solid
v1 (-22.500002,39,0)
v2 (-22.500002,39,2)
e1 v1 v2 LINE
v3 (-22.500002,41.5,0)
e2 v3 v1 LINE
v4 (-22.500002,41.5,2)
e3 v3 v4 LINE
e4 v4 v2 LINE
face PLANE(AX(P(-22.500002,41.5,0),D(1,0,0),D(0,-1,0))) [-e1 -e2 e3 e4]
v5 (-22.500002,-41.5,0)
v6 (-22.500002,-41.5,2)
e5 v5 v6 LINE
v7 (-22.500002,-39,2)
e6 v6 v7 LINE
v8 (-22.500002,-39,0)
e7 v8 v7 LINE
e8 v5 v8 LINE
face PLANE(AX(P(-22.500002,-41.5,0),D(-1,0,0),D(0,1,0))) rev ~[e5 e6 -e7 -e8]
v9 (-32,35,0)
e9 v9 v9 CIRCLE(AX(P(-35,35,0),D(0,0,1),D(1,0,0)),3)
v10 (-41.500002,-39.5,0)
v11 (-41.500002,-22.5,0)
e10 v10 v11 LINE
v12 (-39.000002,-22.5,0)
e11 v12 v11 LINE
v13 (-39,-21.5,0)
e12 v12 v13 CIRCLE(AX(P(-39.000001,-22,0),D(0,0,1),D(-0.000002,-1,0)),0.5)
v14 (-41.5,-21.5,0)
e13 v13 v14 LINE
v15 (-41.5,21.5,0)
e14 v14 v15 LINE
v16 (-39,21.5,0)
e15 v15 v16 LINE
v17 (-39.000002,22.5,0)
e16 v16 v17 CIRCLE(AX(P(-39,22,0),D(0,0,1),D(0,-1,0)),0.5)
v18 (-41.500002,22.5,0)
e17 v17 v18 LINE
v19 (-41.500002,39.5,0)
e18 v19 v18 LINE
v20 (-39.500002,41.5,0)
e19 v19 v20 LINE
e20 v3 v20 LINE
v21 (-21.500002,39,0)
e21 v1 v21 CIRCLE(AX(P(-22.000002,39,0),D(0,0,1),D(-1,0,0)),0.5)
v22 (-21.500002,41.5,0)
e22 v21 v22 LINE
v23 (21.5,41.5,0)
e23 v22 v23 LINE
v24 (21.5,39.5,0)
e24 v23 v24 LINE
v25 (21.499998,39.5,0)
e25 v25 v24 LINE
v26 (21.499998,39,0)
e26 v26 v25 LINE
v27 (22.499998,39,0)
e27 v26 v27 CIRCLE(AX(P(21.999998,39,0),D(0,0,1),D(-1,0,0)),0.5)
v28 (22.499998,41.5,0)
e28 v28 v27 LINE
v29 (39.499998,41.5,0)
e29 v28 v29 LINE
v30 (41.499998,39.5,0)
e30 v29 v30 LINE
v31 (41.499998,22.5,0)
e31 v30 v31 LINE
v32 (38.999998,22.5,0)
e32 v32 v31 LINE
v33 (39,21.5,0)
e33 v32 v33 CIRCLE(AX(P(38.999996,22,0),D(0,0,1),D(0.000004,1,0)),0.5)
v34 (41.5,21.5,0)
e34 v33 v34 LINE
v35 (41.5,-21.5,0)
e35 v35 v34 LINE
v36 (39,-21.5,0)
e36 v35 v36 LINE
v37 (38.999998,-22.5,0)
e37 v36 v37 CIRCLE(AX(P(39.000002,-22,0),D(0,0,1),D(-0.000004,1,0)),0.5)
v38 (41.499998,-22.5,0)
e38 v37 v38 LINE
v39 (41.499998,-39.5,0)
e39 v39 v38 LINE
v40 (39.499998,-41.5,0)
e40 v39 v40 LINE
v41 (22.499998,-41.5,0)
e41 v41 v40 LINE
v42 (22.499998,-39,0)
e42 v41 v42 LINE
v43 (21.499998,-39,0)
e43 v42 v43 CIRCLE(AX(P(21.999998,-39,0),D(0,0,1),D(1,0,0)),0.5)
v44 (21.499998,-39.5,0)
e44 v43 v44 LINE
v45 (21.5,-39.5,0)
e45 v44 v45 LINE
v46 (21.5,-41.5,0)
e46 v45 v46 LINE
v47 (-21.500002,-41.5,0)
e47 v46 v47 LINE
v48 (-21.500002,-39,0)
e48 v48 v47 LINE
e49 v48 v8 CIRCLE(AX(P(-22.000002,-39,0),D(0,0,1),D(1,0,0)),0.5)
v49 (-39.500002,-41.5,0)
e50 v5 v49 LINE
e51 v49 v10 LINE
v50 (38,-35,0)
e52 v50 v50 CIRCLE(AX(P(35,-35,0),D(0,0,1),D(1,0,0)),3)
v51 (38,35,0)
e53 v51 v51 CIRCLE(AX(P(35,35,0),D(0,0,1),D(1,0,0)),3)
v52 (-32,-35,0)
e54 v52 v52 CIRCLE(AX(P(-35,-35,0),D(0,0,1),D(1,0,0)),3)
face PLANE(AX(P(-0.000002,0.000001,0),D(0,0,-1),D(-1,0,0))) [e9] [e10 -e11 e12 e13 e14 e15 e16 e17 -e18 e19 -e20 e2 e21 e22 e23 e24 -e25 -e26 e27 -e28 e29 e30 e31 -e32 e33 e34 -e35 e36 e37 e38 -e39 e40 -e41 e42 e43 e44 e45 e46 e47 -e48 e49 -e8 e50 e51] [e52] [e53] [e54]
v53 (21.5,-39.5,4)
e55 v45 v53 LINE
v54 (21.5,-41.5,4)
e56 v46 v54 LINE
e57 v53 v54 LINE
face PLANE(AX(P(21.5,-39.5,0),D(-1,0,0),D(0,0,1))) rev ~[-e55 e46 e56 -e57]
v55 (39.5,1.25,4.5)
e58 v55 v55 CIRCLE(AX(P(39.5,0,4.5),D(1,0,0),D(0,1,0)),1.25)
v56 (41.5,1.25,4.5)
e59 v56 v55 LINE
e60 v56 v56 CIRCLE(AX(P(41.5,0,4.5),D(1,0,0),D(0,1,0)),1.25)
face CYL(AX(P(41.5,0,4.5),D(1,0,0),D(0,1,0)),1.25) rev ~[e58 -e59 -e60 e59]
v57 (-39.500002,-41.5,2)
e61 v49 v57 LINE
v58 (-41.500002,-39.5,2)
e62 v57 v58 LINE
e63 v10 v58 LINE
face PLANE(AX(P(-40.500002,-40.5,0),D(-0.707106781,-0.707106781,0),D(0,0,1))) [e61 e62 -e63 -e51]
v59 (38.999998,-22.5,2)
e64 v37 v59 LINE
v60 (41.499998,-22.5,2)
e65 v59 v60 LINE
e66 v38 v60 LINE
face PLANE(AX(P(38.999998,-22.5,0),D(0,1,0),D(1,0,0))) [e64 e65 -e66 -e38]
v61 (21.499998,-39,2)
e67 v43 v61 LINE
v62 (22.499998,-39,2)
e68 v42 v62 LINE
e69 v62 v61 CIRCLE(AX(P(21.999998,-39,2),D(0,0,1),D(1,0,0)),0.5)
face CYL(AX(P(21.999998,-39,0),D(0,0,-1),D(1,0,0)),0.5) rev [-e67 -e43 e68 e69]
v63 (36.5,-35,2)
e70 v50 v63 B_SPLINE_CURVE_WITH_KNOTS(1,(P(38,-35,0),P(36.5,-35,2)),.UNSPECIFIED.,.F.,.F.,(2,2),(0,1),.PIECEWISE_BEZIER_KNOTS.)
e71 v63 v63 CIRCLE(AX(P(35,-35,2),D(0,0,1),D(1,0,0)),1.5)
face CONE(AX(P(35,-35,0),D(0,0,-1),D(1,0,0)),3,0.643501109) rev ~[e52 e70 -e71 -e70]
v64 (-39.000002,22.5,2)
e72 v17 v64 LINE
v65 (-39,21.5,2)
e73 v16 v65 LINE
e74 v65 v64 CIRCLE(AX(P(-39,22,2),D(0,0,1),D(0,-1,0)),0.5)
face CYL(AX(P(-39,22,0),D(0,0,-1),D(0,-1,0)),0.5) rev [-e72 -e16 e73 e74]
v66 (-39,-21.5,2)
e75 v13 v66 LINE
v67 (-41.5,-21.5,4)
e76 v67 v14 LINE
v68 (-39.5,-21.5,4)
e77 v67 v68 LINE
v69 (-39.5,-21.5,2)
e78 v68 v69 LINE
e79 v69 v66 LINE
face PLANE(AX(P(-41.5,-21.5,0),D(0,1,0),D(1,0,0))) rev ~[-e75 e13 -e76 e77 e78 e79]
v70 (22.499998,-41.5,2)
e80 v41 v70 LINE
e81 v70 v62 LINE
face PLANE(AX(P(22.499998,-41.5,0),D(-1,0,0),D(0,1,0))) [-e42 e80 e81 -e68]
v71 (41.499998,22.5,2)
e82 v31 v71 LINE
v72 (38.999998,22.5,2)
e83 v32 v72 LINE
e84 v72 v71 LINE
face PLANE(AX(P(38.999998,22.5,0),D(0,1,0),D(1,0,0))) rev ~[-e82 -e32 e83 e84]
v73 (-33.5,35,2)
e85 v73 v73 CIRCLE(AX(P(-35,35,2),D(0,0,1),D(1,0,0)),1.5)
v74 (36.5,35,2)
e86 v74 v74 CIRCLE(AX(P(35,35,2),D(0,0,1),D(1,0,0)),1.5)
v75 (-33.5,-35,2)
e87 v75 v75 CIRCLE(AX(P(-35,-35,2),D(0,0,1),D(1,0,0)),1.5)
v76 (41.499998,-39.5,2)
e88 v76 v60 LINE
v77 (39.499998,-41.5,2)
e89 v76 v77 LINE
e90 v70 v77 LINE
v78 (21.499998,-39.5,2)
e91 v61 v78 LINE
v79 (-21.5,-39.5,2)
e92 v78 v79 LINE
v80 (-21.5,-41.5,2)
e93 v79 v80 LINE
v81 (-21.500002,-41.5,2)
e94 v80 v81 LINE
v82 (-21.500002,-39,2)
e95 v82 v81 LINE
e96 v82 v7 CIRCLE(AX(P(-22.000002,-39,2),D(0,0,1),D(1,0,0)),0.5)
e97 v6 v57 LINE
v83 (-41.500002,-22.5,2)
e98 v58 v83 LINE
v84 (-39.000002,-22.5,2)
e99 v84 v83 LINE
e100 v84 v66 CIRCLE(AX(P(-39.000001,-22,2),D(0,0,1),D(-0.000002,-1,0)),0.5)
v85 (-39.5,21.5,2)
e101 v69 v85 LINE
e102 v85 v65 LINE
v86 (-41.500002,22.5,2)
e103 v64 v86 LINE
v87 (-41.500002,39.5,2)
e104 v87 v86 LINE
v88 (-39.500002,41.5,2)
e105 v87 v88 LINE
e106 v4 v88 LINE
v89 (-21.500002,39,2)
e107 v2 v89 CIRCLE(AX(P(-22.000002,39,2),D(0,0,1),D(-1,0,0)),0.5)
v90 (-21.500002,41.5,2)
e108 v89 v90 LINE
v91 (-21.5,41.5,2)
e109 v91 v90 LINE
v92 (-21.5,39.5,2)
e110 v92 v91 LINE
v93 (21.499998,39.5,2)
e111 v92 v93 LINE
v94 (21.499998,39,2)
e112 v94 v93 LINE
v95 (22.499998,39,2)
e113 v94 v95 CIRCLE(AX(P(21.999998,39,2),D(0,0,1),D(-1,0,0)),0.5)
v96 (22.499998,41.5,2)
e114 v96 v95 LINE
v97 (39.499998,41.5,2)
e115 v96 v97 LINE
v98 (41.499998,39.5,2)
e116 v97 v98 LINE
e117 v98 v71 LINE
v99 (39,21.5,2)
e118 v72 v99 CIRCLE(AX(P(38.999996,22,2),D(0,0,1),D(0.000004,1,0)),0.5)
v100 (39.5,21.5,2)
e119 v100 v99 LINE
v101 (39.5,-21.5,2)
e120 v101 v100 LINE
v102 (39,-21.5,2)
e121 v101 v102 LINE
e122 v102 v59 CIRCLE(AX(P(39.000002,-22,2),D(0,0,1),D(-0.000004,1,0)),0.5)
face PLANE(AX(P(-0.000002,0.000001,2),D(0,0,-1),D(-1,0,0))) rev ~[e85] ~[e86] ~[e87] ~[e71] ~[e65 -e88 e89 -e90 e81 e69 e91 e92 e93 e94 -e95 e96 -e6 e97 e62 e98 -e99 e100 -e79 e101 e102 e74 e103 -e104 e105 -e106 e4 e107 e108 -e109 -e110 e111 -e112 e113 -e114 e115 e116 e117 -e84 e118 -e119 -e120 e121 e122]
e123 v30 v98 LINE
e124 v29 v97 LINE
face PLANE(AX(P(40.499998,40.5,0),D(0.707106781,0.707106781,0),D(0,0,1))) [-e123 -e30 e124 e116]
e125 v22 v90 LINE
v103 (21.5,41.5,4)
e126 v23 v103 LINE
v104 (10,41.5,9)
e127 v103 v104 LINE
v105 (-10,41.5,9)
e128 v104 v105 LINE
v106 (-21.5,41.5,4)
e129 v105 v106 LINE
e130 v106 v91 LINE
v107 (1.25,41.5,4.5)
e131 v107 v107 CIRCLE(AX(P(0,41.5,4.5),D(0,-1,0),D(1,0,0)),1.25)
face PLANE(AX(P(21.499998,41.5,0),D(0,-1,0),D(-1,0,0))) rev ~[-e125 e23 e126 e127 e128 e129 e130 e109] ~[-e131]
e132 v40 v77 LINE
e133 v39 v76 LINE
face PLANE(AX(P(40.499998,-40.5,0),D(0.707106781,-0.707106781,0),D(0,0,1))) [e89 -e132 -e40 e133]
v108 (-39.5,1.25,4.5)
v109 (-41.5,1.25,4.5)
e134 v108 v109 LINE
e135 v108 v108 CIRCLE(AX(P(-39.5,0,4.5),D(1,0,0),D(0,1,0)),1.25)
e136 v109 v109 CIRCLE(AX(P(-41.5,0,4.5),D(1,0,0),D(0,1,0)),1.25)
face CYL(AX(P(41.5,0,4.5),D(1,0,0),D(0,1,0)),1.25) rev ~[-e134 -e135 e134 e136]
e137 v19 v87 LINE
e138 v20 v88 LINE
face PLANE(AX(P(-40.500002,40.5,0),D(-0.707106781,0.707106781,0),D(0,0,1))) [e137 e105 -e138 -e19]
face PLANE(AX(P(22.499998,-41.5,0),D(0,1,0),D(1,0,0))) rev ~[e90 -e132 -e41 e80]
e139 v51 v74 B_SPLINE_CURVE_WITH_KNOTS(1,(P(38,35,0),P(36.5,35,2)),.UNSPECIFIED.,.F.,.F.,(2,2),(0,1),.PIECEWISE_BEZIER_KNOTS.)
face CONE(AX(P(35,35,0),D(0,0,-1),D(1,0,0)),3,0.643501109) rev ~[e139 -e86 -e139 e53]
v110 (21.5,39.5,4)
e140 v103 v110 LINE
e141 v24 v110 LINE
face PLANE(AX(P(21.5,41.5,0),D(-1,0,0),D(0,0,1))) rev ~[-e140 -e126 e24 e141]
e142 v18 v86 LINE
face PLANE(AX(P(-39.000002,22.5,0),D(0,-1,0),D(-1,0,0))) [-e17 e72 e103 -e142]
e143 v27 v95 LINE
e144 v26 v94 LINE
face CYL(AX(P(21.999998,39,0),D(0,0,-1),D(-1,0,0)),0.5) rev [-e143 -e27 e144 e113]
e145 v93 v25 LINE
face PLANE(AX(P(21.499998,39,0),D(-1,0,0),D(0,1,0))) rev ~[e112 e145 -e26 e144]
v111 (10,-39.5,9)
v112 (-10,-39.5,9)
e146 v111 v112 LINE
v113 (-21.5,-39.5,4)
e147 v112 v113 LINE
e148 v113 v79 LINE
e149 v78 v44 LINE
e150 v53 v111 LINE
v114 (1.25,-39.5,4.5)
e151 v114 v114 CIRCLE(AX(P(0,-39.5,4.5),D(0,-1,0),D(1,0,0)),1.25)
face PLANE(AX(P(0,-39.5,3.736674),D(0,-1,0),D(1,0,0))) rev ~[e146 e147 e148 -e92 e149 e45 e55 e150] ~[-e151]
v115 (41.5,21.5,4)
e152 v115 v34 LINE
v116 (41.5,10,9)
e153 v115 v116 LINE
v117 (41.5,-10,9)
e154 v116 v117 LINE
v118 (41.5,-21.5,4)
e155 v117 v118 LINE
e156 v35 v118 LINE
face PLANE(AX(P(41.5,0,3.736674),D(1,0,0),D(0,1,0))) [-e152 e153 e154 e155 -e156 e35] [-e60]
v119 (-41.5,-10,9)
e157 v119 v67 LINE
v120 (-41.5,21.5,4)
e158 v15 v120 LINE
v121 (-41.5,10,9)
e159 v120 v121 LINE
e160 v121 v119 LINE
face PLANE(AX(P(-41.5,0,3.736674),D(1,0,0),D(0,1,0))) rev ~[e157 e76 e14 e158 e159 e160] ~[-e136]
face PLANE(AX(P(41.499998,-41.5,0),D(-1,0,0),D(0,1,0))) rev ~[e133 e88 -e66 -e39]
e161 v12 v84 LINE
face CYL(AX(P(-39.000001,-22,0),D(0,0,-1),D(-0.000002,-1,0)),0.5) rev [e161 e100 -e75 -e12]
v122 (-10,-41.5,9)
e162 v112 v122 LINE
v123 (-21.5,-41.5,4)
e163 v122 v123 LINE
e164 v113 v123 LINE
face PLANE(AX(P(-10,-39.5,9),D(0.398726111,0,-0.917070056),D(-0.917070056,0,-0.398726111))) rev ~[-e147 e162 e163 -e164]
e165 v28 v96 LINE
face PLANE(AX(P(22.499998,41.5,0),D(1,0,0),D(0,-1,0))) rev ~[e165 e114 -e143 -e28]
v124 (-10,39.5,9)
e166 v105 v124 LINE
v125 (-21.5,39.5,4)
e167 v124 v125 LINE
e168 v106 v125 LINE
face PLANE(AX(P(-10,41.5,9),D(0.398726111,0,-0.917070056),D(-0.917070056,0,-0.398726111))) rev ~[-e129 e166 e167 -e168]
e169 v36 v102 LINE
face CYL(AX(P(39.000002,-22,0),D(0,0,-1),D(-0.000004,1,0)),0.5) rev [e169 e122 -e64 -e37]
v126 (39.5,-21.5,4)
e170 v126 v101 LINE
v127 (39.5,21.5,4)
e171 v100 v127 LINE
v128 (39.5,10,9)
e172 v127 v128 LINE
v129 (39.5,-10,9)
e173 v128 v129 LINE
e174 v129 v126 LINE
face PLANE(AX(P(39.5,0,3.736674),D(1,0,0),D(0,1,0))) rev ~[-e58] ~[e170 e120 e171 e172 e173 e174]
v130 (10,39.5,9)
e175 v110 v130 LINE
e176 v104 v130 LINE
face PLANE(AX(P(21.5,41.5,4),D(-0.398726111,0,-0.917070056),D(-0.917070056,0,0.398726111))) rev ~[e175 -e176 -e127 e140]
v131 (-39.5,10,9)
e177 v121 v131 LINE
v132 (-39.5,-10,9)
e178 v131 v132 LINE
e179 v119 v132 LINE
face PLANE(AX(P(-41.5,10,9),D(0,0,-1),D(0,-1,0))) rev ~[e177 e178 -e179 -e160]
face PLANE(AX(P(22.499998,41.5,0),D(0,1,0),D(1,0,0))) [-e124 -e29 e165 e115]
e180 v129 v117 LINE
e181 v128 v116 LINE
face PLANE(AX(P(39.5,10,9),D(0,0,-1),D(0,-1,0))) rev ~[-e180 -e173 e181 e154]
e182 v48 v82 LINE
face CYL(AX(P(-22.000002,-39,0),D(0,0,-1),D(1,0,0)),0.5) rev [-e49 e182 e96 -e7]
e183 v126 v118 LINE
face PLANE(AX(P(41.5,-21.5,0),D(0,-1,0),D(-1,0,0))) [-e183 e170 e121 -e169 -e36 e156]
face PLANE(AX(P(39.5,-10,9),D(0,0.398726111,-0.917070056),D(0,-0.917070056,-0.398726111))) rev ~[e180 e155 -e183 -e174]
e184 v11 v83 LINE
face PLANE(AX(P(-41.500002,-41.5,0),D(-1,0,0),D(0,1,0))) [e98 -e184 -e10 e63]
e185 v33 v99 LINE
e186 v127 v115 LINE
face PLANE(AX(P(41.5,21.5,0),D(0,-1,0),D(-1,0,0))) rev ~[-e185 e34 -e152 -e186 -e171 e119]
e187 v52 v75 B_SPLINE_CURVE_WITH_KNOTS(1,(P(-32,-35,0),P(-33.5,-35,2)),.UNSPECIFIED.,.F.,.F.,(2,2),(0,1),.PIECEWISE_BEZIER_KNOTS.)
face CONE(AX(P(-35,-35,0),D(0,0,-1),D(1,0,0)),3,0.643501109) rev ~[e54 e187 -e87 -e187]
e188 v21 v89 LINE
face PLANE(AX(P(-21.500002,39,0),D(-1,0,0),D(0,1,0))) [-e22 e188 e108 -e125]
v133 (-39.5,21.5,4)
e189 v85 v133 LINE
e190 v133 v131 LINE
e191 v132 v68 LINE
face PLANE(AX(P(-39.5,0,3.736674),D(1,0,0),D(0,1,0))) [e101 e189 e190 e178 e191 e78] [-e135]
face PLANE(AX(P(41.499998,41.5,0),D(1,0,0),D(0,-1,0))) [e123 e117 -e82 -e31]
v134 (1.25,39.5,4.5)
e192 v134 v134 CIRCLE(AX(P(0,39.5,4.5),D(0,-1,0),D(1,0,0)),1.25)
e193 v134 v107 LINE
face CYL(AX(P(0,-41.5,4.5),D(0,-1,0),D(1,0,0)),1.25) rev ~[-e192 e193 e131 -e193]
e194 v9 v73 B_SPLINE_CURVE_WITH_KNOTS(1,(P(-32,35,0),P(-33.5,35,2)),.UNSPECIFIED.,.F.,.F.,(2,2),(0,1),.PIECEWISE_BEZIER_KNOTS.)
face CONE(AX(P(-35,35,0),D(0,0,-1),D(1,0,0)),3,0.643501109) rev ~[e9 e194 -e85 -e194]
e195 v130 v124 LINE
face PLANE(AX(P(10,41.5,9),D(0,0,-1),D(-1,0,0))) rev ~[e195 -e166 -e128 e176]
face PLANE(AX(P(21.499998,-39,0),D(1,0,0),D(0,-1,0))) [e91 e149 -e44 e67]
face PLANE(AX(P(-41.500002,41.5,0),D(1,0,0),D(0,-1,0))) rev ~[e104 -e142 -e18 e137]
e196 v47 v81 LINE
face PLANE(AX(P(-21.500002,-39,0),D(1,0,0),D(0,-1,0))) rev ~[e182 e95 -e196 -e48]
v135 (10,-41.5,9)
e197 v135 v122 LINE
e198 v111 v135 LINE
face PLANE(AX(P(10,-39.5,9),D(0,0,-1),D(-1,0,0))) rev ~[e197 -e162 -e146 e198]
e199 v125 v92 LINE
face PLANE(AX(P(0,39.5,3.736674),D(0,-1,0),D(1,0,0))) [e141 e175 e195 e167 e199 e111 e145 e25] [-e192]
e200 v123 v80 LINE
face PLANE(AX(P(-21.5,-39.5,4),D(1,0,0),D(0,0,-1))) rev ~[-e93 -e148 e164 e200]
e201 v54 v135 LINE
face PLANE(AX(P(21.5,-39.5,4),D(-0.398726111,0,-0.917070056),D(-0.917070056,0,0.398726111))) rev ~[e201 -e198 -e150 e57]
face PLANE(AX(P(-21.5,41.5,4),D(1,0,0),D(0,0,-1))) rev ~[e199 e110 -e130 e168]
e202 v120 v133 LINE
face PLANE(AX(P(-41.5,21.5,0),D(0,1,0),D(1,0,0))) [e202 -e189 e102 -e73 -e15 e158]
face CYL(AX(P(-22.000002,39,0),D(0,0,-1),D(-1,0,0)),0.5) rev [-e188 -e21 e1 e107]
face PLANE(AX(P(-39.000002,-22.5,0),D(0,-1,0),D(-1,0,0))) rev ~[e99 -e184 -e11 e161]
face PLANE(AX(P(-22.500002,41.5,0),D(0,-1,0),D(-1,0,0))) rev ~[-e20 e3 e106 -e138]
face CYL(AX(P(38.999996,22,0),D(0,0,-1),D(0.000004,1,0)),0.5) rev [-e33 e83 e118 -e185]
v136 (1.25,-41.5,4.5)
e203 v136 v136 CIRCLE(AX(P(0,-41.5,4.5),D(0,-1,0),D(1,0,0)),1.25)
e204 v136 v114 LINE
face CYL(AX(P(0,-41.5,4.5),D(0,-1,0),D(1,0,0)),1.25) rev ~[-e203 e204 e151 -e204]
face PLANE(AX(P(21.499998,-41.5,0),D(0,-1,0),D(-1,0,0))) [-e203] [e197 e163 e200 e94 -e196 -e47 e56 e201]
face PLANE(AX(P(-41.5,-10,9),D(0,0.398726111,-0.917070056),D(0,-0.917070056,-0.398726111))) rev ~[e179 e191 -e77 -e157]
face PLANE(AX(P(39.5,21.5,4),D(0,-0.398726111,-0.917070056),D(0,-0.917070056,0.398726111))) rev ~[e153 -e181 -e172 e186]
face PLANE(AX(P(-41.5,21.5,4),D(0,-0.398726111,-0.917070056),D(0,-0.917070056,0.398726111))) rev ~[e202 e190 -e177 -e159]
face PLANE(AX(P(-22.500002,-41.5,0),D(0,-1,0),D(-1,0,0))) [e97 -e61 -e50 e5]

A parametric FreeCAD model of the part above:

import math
import FreeCAD as App
import Part
import Sketcher
from FreeCAD import Vector


def edges_at(feature, points):
    """Names of the edges that pass closest to the given points."""
    edges = feature.Shape.Edges
    near = lambda p: min(range(len(edges)), key=lambda i: edges[i].distToShape(Part.Vertex(*p))[0])
    return sorted({f"Edge{near(p) + 1}" for p in points})


def add_polygon(sketch, points):
    """Adds a closed chain of lines whose ends are joined by coincident constraints."""
    first, n = sketch.GeometryCount, len(points)
    for a, b in zip(points, points[1:] + points[:1]):
        sketch.addGeometry(Part.LineSegment(App.Vector(*a, 0), App.Vector(*b, 0)), False)
    for i in range(n):
        sketch.addConstraint(Sketcher.Constraint("Coincident", first + i, 2, first + (i + 1) % n, 1))

doc = App.newDocument("Part")
params = doc.addObject("Spreadsheet::Sheet", "Params")
for row, (alias, value) in enumerate([
    ("sketch1_width", "43 mm"),
    ("sketch1_width2", "20 mm"),
    ("sketch1_height", "4 mm"),
    ("pad1_length", "2 mm"),
    ("sketch2_diameter", "6 mm"),
    ("sketch3_diameter", "3 mm"),
    ("sketch4_diameter", "6 mm"),
    ("sketch5_diameter", "3 mm"),
    ("sketch6_diameter", "6 mm"),
    ("sketch7_diameter", "3 mm"),
    ("sketch8_diameter", "6 mm"),
    ("sketch9_diameter", "3 mm"),
    ("sketch10_radius", "0.5 mm"),
    ("sketch10_width", "43 mm"),
    ("sketch10_width2", "19 mm"),
    ("sketch10_width3", "2.5 mm"),
    ("pad2_length", "2 mm"),
    ("chamfer_size", "2 mm"),
    ("sketch11_width", "43 mm"),
    ("sketch11_width2", "20 mm"),
    ("sketch11_height", "4 mm"),
    ("pad3_length", "2 mm"),
    ("sketch12_width", "43 mm"),
    ("sketch12_width2", "20 mm"),
    ("sketch12_height", "4 mm"),
    ("pad4_length", "2 mm"),
    ("sketch13_width", "43 mm"),
    ("sketch13_width2", "20 mm"),
    ("sketch13_height", "4 mm"),
    ("pad5_length", "2 mm"),
    ("sketch14_diameter", "2.5 mm"),
    ("sketch15_diameter", "2.5 mm"),
], start=1):
    params.set(f"A{row}", alias)
    params.set(f"B{row}", "=" + value)
    params.setAlias(f"B{row}", alias)

body = doc.addObject("PartDesign::Body", "Body")

sketch1 = body.newObject("Sketcher::SketchObject", "Sketch")
sketch1.AttachmentSupport = (doc.getObject("YZ_Plane"), [""])
sketch1.MapMode = "FlatFace"
sketch1.AttachmentOffset = App.Placement(Vector(0, 0, 39.5), App.Rotation())
add_polygon(sketch1, [(-21.5, 0), (21.5, 0), (21.5, 4), (10, 9), (-10, 9), (-21.5, 4)])
sketch1.addConstraint(Sketcher.Constraint("Horizontal", 0))
sketch1.addConstraint(Sketcher.Constraint("Vertical", 1))
sketch1.addConstraint(Sketcher.Constraint("Horizontal", 3))
sketch1.addConstraint(Sketcher.Constraint("Vertical", 5))
sketch1.addConstraint(Sketcher.Constraint("Symmetric", 0, 2, 5, 2, -1, 1))
sketch1.addConstraint(Sketcher.Constraint("Horizontal", 1, 2, 4, 2))
sketch1.addConstraint(Sketcher.Constraint("Equal", 2, 4))
sketch1.addConstraint(Sketcher.Constraint("DistanceX", 0, 1, 0, 2, 43.0))
sketch1.addConstraint(Sketcher.Constraint("DistanceX", 3, 2, 3, 1, 20.0))
sketch1.addConstraint(Sketcher.Constraint("DistanceY", 1, 1, 1, 2, 4.0))
sketch1.addConstraint(Sketcher.Constraint("DistanceY", -1, 1, 2, 2, 9.0))
sketch1.setExpression("Constraints[13]", "Params.sketch1_width")
sketch1.setExpression("Constraints[14]", "Params.sketch1_width2")
sketch1.setExpression("Constraints[15]", "Params.sketch1_height")
pad1 = body.newObject("PartDesign::Pad", "Pad")
pad1.Profile = sketch1
pad1.setExpression("Length", "Params.pad1_length")
body2 = doc.addObject("PartDesign::Body", "Body001")

sketch2 = body2.newObject("Sketcher::SketchObject", "Sketch001")
sketch2.AttachmentSupport = (doc.getObject("XY_Plane001"), [""])
sketch2.MapMode = "FlatFace"
sketch2.addGeometry(Part.Circle(Vector(35, -35, 0), Vector(0, 0, 1), 3), False)
sketch2.addConstraint(Sketcher.Constraint("Diameter", 0, 6.0))
sketch2.addConstraint(Sketcher.Constraint("DistanceX", -1, 1, 0, 3, 35.0))
sketch2.addConstraint(Sketcher.Constraint("DistanceY", 0, 3, -1, 1, 35.0))
sketch2.setExpression("Constraints[0]", "Params.sketch2_diameter")

sketch3 = body2.newObject("Sketcher::SketchObject", "Sketch002")
sketch3.AttachmentSupport = (doc.getObject("XY_Plane001"), [""])
sketch3.MapMode = "FlatFace"
sketch3.AttachmentOffset = App.Placement(Vector(0, 0, 2), App.Rotation())
sketch3.addGeometry(Part.Circle(Vector(35, -35, 0), Vector(0, 0, 1), 1.5), False)
sketch3.addConstraint(Sketcher.Constraint("Diameter", 0, 3.0))
sketch3.addConstraint(Sketcher.Constraint("DistanceX", -1, 1, 0, 3, 35.0))
sketch3.addConstraint(Sketcher.Constraint("DistanceY", 0, 3, -1, 1, 35.0))
sketch3.setExpression("Constraints[0]", "Params.sketch3_diameter")

additiveloft = body2.newObject("PartDesign::AdditiveLoft", "AdditiveLoft")
additiveloft.Profile = sketch2
additiveloft.Sections = [sketch3]
additiveloft.Ruled = True
body3 = doc.addObject("PartDesign::Body", "Body002")

sketch4 = body3.newObject("Sketcher::SketchObject", "Sketch003")
sketch4.AttachmentSupport = (doc.getObject("XY_Plane002"), [""])
sketch4.MapMode = "FlatFace"
sketch4.addGeometry(Part.Circle(Vector(-35, 35, 0), Vector(0, 0, 1), 3), False)
sketch4.addConstraint(Sketcher.Constraint("Diameter", 0, 6.0))
sketch4.addConstraint(Sketcher.Constraint("DistanceX", 0, 3, -1, 1, 35.0))
sketch4.addConstraint(Sketcher.Constraint("DistanceY", -1, 1, 0, 3, 35.0))
sketch4.setExpression("Constraints[0]", "Params.sketch4_diameter")

sketch5 = body3.newObject("Sketcher::SketchObject", "Sketch004")
sketch5.AttachmentSupport = (doc.getObject("XY_Plane002"), [""])
sketch5.MapMode = "FlatFace"
sketch5.AttachmentOffset = App.Placement(Vector(0, 0, 2), App.Rotation())
sketch5.addGeometry(Part.Circle(Vector(-35, 35, 0), Vector(0, 0, 1), 1.5), False)
sketch5.addConstraint(Sketcher.Constraint("Diameter", 0, 3.0))
sketch5.addConstraint(Sketcher.Constraint("DistanceX", 0, 3, -1, 1, 35.0))
sketch5.addConstraint(Sketcher.Constraint("DistanceY", -1, 1, 0, 3, 35.0))
sketch5.setExpression("Constraints[0]", "Params.sketch5_diameter")

additiveloft2 = body3.newObject("PartDesign::AdditiveLoft", "AdditiveLoft001")
additiveloft2.Profile = sketch4
additiveloft2.Sections = [sketch5]
additiveloft2.Ruled = True
body4 = doc.addObject("PartDesign::Body", "Body003")

sketch6 = body4.newObject("Sketcher::SketchObject", "Sketch005")
sketch6.AttachmentSupport = (doc.getObject("XY_Plane003"), [""])
sketch6.MapMode = "FlatFace"
sketch6.addGeometry(Part.Circle(Vector(35, 35, 0), Vector(0, 0, 1), 3), False)
sketch6.addConstraint(Sketcher.Constraint("Diameter", 0, 6.0))
sketch6.addConstraint(Sketcher.Constraint("DistanceX", -1, 1, 0, 3, 35.0))
sketch6.addConstraint(Sketcher.Constraint("DistanceY", -1, 1, 0, 3, 35.0))
sketch6.setExpression("Constraints[0]", "Params.sketch6_diameter")

sketch7 = body4.newObject("Sketcher::SketchObject", "Sketch006")
sketch7.AttachmentSupport = (doc.getObject("XY_Plane003"), [""])
sketch7.MapMode = "FlatFace"
sketch7.AttachmentOffset = App.Placement(Vector(0, 0, 2), App.Rotation())
sketch7.addGeometry(Part.Circle(Vector(35, 35, 0), Vector(0, 0, 1), 1.5), False)
sketch7.addConstraint(Sketcher.Constraint("Diameter", 0, 3.0))
sketch7.addConstraint(Sketcher.Constraint("DistanceX", -1, 1, 0, 3, 35.0))
sketch7.addConstraint(Sketcher.Constraint("DistanceY", -1, 1, 0, 3, 35.0))
sketch7.setExpression("Constraints[0]", "Params.sketch7_diameter")

additiveloft3 = body4.newObject("PartDesign::AdditiveLoft", "AdditiveLoft002")
additiveloft3.Profile = sketch6
additiveloft3.Sections = [sketch7]
additiveloft3.Ruled = True
body5 = doc.addObject("PartDesign::Body", "Body004")

sketch8 = body5.newObject("Sketcher::SketchObject", "Sketch007")
sketch8.AttachmentSupport = (doc.getObject("XY_Plane004"), [""])
sketch8.MapMode = "FlatFace"
sketch8.addGeometry(Part.Circle(Vector(-35, -35, 0), Vector(0, 0, 1), 3), False)
sketch8.addConstraint(Sketcher.Constraint("Diameter", 0, 6.0))
sketch8.addConstraint(Sketcher.Constraint("DistanceX", 0, 3, -1, 1, 35.0))
sketch8.addConstraint(Sketcher.Constraint("DistanceY", 0, 3, -1, 1, 35.0))
sketch8.setExpression("Constraints[0]", "Params.sketch8_diameter")

sketch9 = body5.newObject("Sketcher::SketchObject", "Sketch008")
sketch9.AttachmentSupport = (doc.getObject("XY_Plane004"), [""])
sketch9.MapMode = "FlatFace"
sketch9.AttachmentOffset = App.Placement(Vector(0, 0, 2), App.Rotation())
sketch9.addGeometry(Part.Circle(Vector(-35, -35, 0), Vector(0, 0, 1), 1.5), False)
sketch9.addConstraint(Sketcher.Constraint("Diameter", 0, 3.0))
sketch9.addConstraint(Sketcher.Constraint("DistanceX", 0, 3, -1, 1, 35.0))
sketch9.addConstraint(Sketcher.Constraint("DistanceY", 0, 3, -1, 1, 35.0))
sketch9.setExpression("Constraints[0]", "Params.sketch9_diameter")

additiveloft4 = body5.newObject("PartDesign::AdditiveLoft", "AdditiveLoft003")
additiveloft4.Profile = sketch8
additiveloft4.Sections = [sketch9]
additiveloft4.Ruled = True
body6 = doc.addObject("PartDesign::Body", "Body005")

sketch10 = body6.newObject("Sketcher::SketchObject", "Sketch009")
sketch10.AttachmentSupport = (doc.getObject("XY_Plane005"), [""])
sketch10.MapMode = "FlatFace"
sketch10.addGeometry(Part.LineSegment(Vector(-21.5, -41.5, 0), Vector(21.5, -41.5, 0)), False)
sketch10.addGeometry(Part.LineSegment(Vector(21.5, -41.5, 0), Vector(21.5, -39, 0)), False)
sketch10.addGeometry(Part.ArcOfCircle(Part.Circle(Vector(22, -39, 0), Vector(0, 0, 1), 0.5), math.radians(0), math.radians(180)), False)
sketch10.addGeometry(Part.LineSegment(Vector(22.5, -39, 0), Vector(22.5, -41.5, 0)), False)
sketch10.addGeometry(Part.LineSegment(Vector(22.5, -41.5, 0), Vector(41.5, -41.5, 0)), False)
sketch10.addGeometry(Part.LineSegment(Vector(41.5, -41.5, 0), Vector(41.5, -22.5, 0)), False)
sketch10.addGeometry(Part.LineSegment(Vector(41.5, -22.5, 0), Vector(39, -22.5, 0)), False)
sketch10.addGeometry(Part.ArcOfCircle(Part.Circle(Vector(39, -22, 0), Vector(0, 0, 1), 0.5), math.radians(90), math.radians(270)), False)
sketch10.addGeometry(Part.LineSegment(Vector(39, -21.5, 0), Vector(41.5, -21.5, 0)), False)
sketch10.addGeometry(Part.LineSegment(Vector(41.5, -21.5, 0), Vector(41.5, 21.5, 0)), False)
sketch10.addGeometry(Part.LineSegment(Vector(41.5, 21.5, 0), Vector(39, 21.5, 0)), False)
sketch10.addGeometry(Part.ArcOfCircle(Part.Circle(Vector(39, 22, 0), Vector(0, 0, 1), 0.5), math.radians(90), math.radians(270)), False)
sketch10.addGeometry(Part.LineSegment(Vector(39, 22.5, 0), Vector(41.5, 22.5, 0)), False)
sketch10.addGeometry(Part.LineSegment(Vector(41.5, 22.5, 0), Vector(41.5, 41.5, 0)), False)
sketch10.addGeometry(Part.LineSegment(Vector(41.5, 41.5, 0), Vector(22.5, 41.5, 0)), False)
sketch10.addGeometry(Part.LineSegment(Vector(22.5, 41.5, 0), Vector(22.5, 39, 0)), False)
sketch10.addGeometry(Part.ArcOfCircle(Part.Circle(Vector(22, 39, 0), Vector(0, 0, 1), 0.5), math.radians(180), math.radians(360)), False)
sketch10.addGeometry(Part.LineSegment(Vector(21.5, 39, 0), Vector(21.5, 41.5, 0)), False)
sketch10.addGeometry(Part.LineSegment(Vector(21.5, 41.5, 0), Vector(-21.5, 41.5, 0)), False)
sketch10.addGeometry(Part.LineSegment(Vector(-21.5, 41.5, 0), Vector(-21.5, 39, 0)), False)
sketch10.addGeometry(Part.ArcOfCircle(Part.Circle(Vector(-22, 39, 0), Vector(0, 0, 1), 0.5), math.radians(180), math.radians(360)), False)
sketch10.addGeometry(Part.LineSegment(Vector(-22.5, 39, 0), Vector(-22.5, 41.5, 0)), False)
sketch10.addGeometry(Part.LineSegment(Vector(-22.5, 41.5, 0), Vector(-41.5, 41.5, 0)), False)
sketch10.addGeometry(Part.LineSegment(Vector(-41.5, 41.5, 0), Vector(-41.5, 22.5, 0)), False)
sketch10.addGeometry(Part.LineSegment(Vector(-41.5, 22.5, 0), Vector(-39, 22.5, 0)), False)
sketch10.addGeometry(Part.ArcOfCircle(Part.Circle(Vector(-39, 22, 0), Vector(0, 0, 1), 0.5), math.radians(-90), math.radians(90)), False)
sketch10.addGeometry(Part.LineSegment(Vector(-39, 21.5, 0), Vector(-41.5, 21.5, 0)), False)
sketch10.addGeometry(Part.LineSegment(Vector(-41.5, 21.5, 0), Vector(-41.5, -21.5, 0)), False)
sketch10.addGeometry(Part.LineSegment(Vector(-41.5, -21.5, 0), Vector(-39, -21.5, 0)), False)
sketch10.addGeometry(Part.ArcOfCircle(Part.Circle(Vector(-39, -22, 0), Vector(0, 0, 1), 0.5), math.radians(-90), math.radians(90)), False)
sketch10.addGeometry(Part.LineSegment(Vector(-39, -22.5, 0), Vector(-41.5, -22.5, 0)), False)
sketch10.addGeometry(Part.LineSegment(Vector(-41.5, -22.5, 0), Vector(-41.5, -41.5, 0)), False)
sketch10.addGeometry(Part.LineSegment(Vector(-41.5, -41.5, 0), Vector(-22.5, -41.5, 0)), False)
sketch10.addGeometry(Part.LineSegment(Vector(-22.5, -41.5, 0), Vector(-22.5, -39, 0)), False)
sketch10.addGeometry(Part.ArcOfCircle(Part.Circle(Vector(-22, -39, 0), Vector(0, 0, 1), 0.5), math.radians(0), math.radians(180)), False)
sketch10.addGeometry(Part.LineSegment(Vector(-21.5, -39, 0), Vector(-21.5, -41.5, 0)), False)
sketch10.addConstraint(Sketcher.Constraint("Coincident", 0, 2, 1, 1))
sketch10.addConstraint(Sketcher.Constraint("Tangent", 1, 2, 2, 2))
sketch10.addConstraint(Sketcher.Constraint("Tangent", 2, 1, 3, 1))
sketch10.addConstraint(Sketcher.Constraint("Coincident", 3, 2, 4, 1))
sketch10.addConstraint(Sketcher.Constraint("Coincident", 4, 2, 5, 1))
sketch10.addConstraint(Sketcher.Constraint("Coincident", 5, 2, 6, 1))
sketch10.addConstraint(Sketcher.Constraint("Coincident", 6, 2, 7, 2))
sketch10.addConstraint(Sketcher.Constraint("Coincident", 7, 1, 8, 1))
sketch10.addConstraint(Sketcher.Constraint("Coincident", 8, 2, 9, 1))
sketch10.addConstraint(Sketcher.Constraint("Coincident", 9, 2, 10, 1))
sketch10.addConstraint(Sketcher.Constraint("Coincident", 10, 2, 11, 2))
sketch10.addConstraint(Sketcher.Constraint("Coincident", 11, 1, 12, 1))
sketch10.addConstraint(Sketcher.Constraint("Coincident", 12, 2, 13, 1))
sketch10.addConstraint(Sketcher.Constraint("Coincident", 13, 2, 14, 1))
sketch10.addConstraint(Sketcher.Constraint("Coincident", 14, 2, 15, 1))
sketch10.addConstraint(Sketcher.Constraint("Tangent", 15, 2, 16, 2))
sketch10.addConstraint(Sketcher.Constraint("Tangent", 16, 1, 17, 1))
sketch10.addConstraint(Sketcher.Constraint("Coincident", 17, 2, 18, 1))
sketch10.addConstraint(Sketcher.Constraint("Coincident", 18, 2, 19, 1))
sketch10.addConstraint(Sketcher.Constraint("Tangent", 19, 2, 20, 2))
sketch10.addConstraint(Sketcher.Constraint("Tangent", 20, 1, 21, 1))
sketch10.addConstraint(Sketcher.Constraint("Coincident", 21, 2, 22, 1))
sketch10.addConstraint(Sketcher.Constraint("Coincident", 22, 2, 23, 1))
sketch10.addConstraint(Sketcher.Constraint("Coincident", 23, 2, 24, 1))
sketch10.addConstraint(Sketcher.Constraint("Coincident", 24, 2, 25, 2))
sketch10.addConstraint(Sketcher.Constraint("Tangent", 25, 1, 26, 1))
sketch10.addConstraint(Sketcher.Constraint("Coincident", 26, 2, 27, 1))
sketch10.addConstraint(Sketcher.Constraint("Coincident", 27, 2, 28, 1))
sketch10.addConstraint(Sketcher.Constraint("Tangent", 28, 2, 29, 2))
sketch10.addConstraint(Sketcher.Constraint("Coincident", 29, 1, 30, 1))
sketch10.addConstraint(Sketcher.Constraint("Coincident", 30, 2, 31, 1))
sketch10.addConstraint(Sketcher.Constraint("Coincident", 31, 2, 32, 1))
sketch10.addConstraint(Sketcher.Constraint("Coincident", 32, 2, 33, 1))
sketch10.addConstraint(Sketcher.Constraint("Tangent", 33, 2, 34, 2))
sketch10.addConstraint(Sketcher.Constraint("Tangent", 34, 1, 35, 1))
sketch10.addConstraint(Sketcher.Constraint("Coincident", 35, 2, 0, 1))
sketch10.addConstraint(Sketcher.Constraint("Horizontal", 0))
sketch10.addConstraint(Sketcher.Constraint("Vertical", 1))
sketch10.addConstraint(Sketcher.Constraint("Vertical", 3))
sketch10.addConstraint(Sketcher.Constraint("Horizontal", 4))
sketch10.addConstraint(Sketcher.Constraint("Vertical", 5))
sketch10.addConstraint(Sketcher.Constraint("Horizontal", 6))
sketch10.addConstraint(Sketcher.Constraint("Horizontal", 8))
sketch10.addConstraint(Sketcher.Constraint("Vertical", 9))
sketch10.addConstraint(Sketcher.Constraint("Horizontal", 10))
sketch10.addConstraint(Sketcher.Constraint("Horizontal", 12))
sketch10.addConstraint(Sketcher.Constraint("Vertical", 13))
sketch10.addConstraint(Sketcher.Constraint("Horizontal", 14))
sketch10.addConstraint(Sketcher.Constraint("Vertical", 15))
sketch10.addConstraint(Sketcher.Constraint("Vertical", 17))
sketch10.addConstraint(Sketcher.Constraint("Horizontal", 18))
sketch10.addConstraint(Sketcher.Constraint("Vertical", 19))
sketch10.addConstraint(Sketcher.Constraint("Vertical", 21))
sketch10.addConstraint(Sketcher.Constraint("Horizontal", 22))
sketch10.addConstraint(Sketcher.Constraint("Vertical", 23))
sketch10.addConstraint(Sketcher.Constraint("Horizontal", 24))
sketch10.addConstraint(Sketcher.Constraint("Horizontal", 26))
sketch10.addConstraint(Sketcher.Constraint("Vertical", 27))
sketch10.addConstraint(Sketcher.Constraint("Horizontal", 28))
sketch10.addConstraint(Sketcher.Constraint("Horizontal", 30))
sketch10.addConstraint(Sketcher.Constraint("Vertical", 31))
sketch10.addConstraint(Sketcher.Constraint("Horizontal", 32))
sketch10.addConstraint(Sketcher.Constraint("Vertical", 33))
sketch10.addConstraint(Sketcher.Constraint("Vertical", 35))
sketch10.addConstraint(Sketcher.Constraint("Equal", 2, 7))
sketch10.addConstraint(Sketcher.Constraint("Equal", 7, 11))
sketch10.addConstraint(Sketcher.Constraint("Equal", 11, 16))
sketch10.addConstraint(Sketcher.Constraint("Equal", 16, 20))
sketch10.addConstraint(Sketcher.Constraint("Equal", 20, 25))
sketch10.addConstraint(Sketcher.Constraint("Equal", 25, 29))
sketch10.addConstraint(Sketcher.Constraint("Equal", 29, 34))
sketch10.addConstraint(Sketcher.Constraint("Symmetric", 2, 3, 20, 3, -1, 1))
sketch10.addConstraint(Sketcher.Constraint("Symmetric", 7, 3, 25, 3, -1, 1))
sketch10.addConstraint(Sketcher.Constraint("Symmetric", 11, 3, 29, 3, -1, 1))
sketch10.addConstraint(Sketcher.Constraint("Symmetric", 16, 3, 34, 3, -1, 1))
sketch10.addConstraint(Sketcher.Constraint("Symmetric", 4, 2, 22, 2, -1, 1))
sketch10.addConstraint(Sketcher.Constraint("Symmetric", 13, 2, 31, 2, -1, 1))
sketch10.addConstraint(Sketcher.Constraint("Symmetric", 16, 3, 20, 3, -2))
sketch10.addConstraint(Sketcher.Constraint("Symmetric", 11, 3, 25, 3, -2))
sketch10.addConstraint(Sketcher.Constraint("Symmetric", 13, 2, 22, 2, -2))
sketch10.addConstraint(Sketcher.Constraint("Horizontal", 0, 2, 3, 2))
sketch10.addConstraint(Sketcher.Constraint("Horizontal", 14, 2, 17, 2))
sketch10.addConstraint(Sketcher.Constraint("Vertical", 11, 3, 6, 2))
sketch10.addConstraint(Sketcher.Constraint("Vertical", 7, 1, 10, 2))
sketch10.addConstraint(Sketcher.Constraint("Vertical", 6, 2, 11, 1))
sketch10.addConstraint(Sketcher.Constraint("Vertical", 29, 3, 24, 2))
sketch10.addConstraint(Sketcher.Constraint("Vertical", 24, 2, 29, 1))
sketch10.addConstraint(Sketcher.Constraint("Equal", 6, 8))
sketch10.addConstraint(Sketcher.Constraint("Equal", 24, 26))
sketch10.addConstraint(Sketcher.Constraint("Equal", 30, 1))
sketch10.addConstraint(Sketcher.Constraint("Equal", 32, 5))
sketch10.addConstraint(Sketcher.Constraint("Equal", 18, 9))
sketch10.addConstraint(Sketcher.Constraint("Radius", 2, 0.5))
sketch10.addConstraint(Sketcher.Constraint("DistanceX", 0, 1, 0, 2, 43.0))
sketch10.addConstraint(Sketcher.Constraint("DistanceX", 4, 1, 4, 2, 19.0))
sketch10.addConstraint(Sketcher.Constraint("DistanceX", 6, 2, 6, 1, 2.5))
sketch10.addConstraint(Sketcher.Constraint("DistanceX", -1, 1, 7, 1, 39.0))
sketch10.setExpression("Constraints[92]", "Params.sketch10_radius")
sketch10.setExpression("Constraints[93]", "Params.sketch10_width")
sketch10.setExpression("Constraints[94]", "Params.sketch10_width2")
sketch10.setExpression("Constraints[95]", "Params.sketch10_width3")
pad2 = body6.newObject("PartDesign::Pad", "Pad001")
pad2.Profile = sketch10
pad2.setExpression("Length", "Params.pad2_length")
doc.recompute()

chamfer = body6.newObject("PartDesign::Chamfer", "Chamfer")
chamfer.Base = (pad2, edges_at(pad2, [
    (-41.5, -41.5, 1),
    (-41.5, 41.5, 1),
    (41.5, -41.5, 1),
    (41.5, 41.5, 1),
]))
chamfer.setExpression("Size", "Params.chamfer_size")
doc.recompute()

boolean = body6.newObject("PartDesign::Boolean", "Boolean")
boolean.Type = "Cut"
boolean.addObjects([body5])
doc.recompute()

boolean2 = body6.newObject("PartDesign::Boolean", "Boolean001")
boolean2.Type = "Cut"
boolean2.addObjects([body4])
doc.recompute()

boolean3 = body6.newObject("PartDesign::Boolean", "Boolean002")
boolean3.Type = "Cut"
boolean3.addObjects([body3])
doc.recompute()

boolean4 = body6.newObject("PartDesign::Boolean", "Boolean003")
boolean4.Type = "Cut"
boolean4.addObjects([body2])
body7 = doc.addObject("PartDesign::Body", "Body006")

sketch11 = body7.newObject("Sketcher::SketchObject", "Sketch010")
sketch11.AttachmentSupport = (doc.getObject("YZ_Plane006"), [""])
sketch11.MapMode = "FlatFace"
sketch11.AttachmentOffset = App.Placement(Vector(0, 0, -41.5), App.Rotation())
add_polygon(sketch11, [(-21.5, 0), (21.5, 0), (21.5, 4), (10, 9), (-10, 9), (-21.5, 4)])
sketch11.addConstraint(Sketcher.Constraint("Horizontal", 0))
sketch11.addConstraint(Sketcher.Constraint("Vertical", 1))
sketch11.addConstraint(Sketcher.Constraint("Horizontal", 3))
sketch11.addConstraint(Sketcher.Constraint("Vertical", 5))
sketch11.addConstraint(Sketcher.Constraint("Symmetric", 0, 2, 5, 2, -1, 1))
sketch11.addConstraint(Sketcher.Constraint("Horizontal", 1, 2, 4, 2))
sketch11.addConstraint(Sketcher.Constraint("Equal", 2, 4))
sketch11.addConstraint(Sketcher.Constraint("DistanceX", 0, 1, 0, 2, 43.0))
sketch11.addConstraint(Sketcher.Constraint("DistanceX", 3, 2, 3, 1, 20.0))
sketch11.addConstraint(Sketcher.Constraint("DistanceY", 1, 1, 1, 2, 4.0))
sketch11.addConstraint(Sketcher.Constraint("DistanceY", -1, 1, 2, 2, 9.0))
sketch11.setExpression("Constraints[13]", "Params.sketch11_width")
sketch11.setExpression("Constraints[14]", "Params.sketch11_width2")
sketch11.setExpression("Constraints[15]", "Params.sketch11_height")
pad3 = body7.newObject("PartDesign::Pad", "Pad002")
pad3.Profile = sketch11
pad3.setExpression("Length", "Params.pad3_length")
doc.recompute()

boolean5 = body7.newObject("PartDesign::Boolean", "Boolean004")
boolean5.Type = "Fuse"
boolean5.addObjects([body6])
body8 = doc.addObject("PartDesign::Body", "Body007")

sketch12 = body8.newObject("Sketcher::SketchObject", "Sketch011")
sketch12.AttachmentSupport = (doc.getObject("XZ_Plane007"), [""])
sketch12.MapMode = "FlatFace"
sketch12.AttachmentOffset = App.Placement(Vector(0, 0, 39.5), App.Rotation())
add_polygon(sketch12, [(-21.5, 0), (21.5, 0), (21.5, 4), (10, 9), (-10, 9), (-21.5, 4)])
sketch12.addConstraint(Sketcher.Constraint("Horizontal", 0))
sketch12.addConstraint(Sketcher.Constraint("Vertical", 1))
sketch12.addConstraint(Sketcher.Constraint("Horizontal", 3))
sketch12.addConstraint(Sketcher.Constraint("Vertical", 5))
sketch12.addConstraint(Sketcher.Constraint("Symmetric", 0, 2, 5, 2, -1, 1))
sketch12.addConstraint(Sketcher.Constraint("Horizontal", 1, 2, 4, 2))
sketch12.addConstraint(Sketcher.Constraint("Equal", 2, 4))
sketch12.addConstraint(Sketcher.Constraint("DistanceX", 0, 1, 0, 2, 43.0))
sketch12.addConstraint(Sketcher.Constraint("DistanceX", 3, 2, 3, 1, 20.0))
sketch12.addConstraint(Sketcher.Constraint("DistanceY", 1, 1, 1, 2, 4.0))
sketch12.addConstraint(Sketcher.Constraint("DistanceY", -1, 1, 2, 2, 9.0))
sketch12.setExpression("Constraints[13]", "Params.sketch12_width")
sketch12.setExpression("Constraints[14]", "Params.sketch12_width2")
sketch12.setExpression("Constraints[15]", "Params.sketch12_height")
pad4 = body8.newObject("PartDesign::Pad", "Pad003")
pad4.Profile = sketch12
pad4.setExpression("Length", "Params.pad4_length")
body9 = doc.addObject("PartDesign::Body", "Body008")
body9.AllowCompound = True

sketch13 = body9.newObject("Sketcher::SketchObject", "Sketch012")
sketch13.AttachmentSupport = (doc.getObject("XZ_Plane008"), [""])
sketch13.MapMode = "FlatFace"
sketch13.AttachmentOffset = App.Placement(Vector(0, 0, -41.5), App.Rotation())
add_polygon(sketch13, [(-21.5, 0), (21.5, 0), (21.5, 4), (10, 9), (-10, 9), (-21.5, 4)])
sketch13.addConstraint(Sketcher.Constraint("Horizontal", 0))
sketch13.addConstraint(Sketcher.Constraint("Vertical", 1))
sketch13.addConstraint(Sketcher.Constraint("Horizontal", 3))
sketch13.addConstraint(Sketcher.Constraint("Vertical", 5))
sketch13.addConstraint(Sketcher.Constraint("Symmetric", 0, 2, 5, 2, -1, 1))
sketch13.addConstraint(Sketcher.Constraint("Horizontal", 1, 2, 4, 2))
sketch13.addConstraint(Sketcher.Constraint("Equal", 2, 4))
sketch13.addConstraint(Sketcher.Constraint("DistanceX", 0, 1, 0, 2, 43.0))
sketch13.addConstraint(Sketcher.Constraint("DistanceX", 3, 2, 3, 1, 20.0))
sketch13.addConstraint(Sketcher.Constraint("DistanceY", 1, 1, 1, 2, 4.0))
sketch13.addConstraint(Sketcher.Constraint("DistanceY", -1, 1, 2, 2, 9.0))
sketch13.setExpression("Constraints[13]", "Params.sketch13_width")
sketch13.setExpression("Constraints[14]", "Params.sketch13_width2")
sketch13.setExpression("Constraints[15]", "Params.sketch13_height")
pad5 = body9.newObject("PartDesign::Pad", "Pad004")
pad5.Profile = sketch13
pad5.setExpression("Length", "Params.pad5_length")
doc.recompute()

boolean6 = body9.newObject("PartDesign::Boolean", "Boolean005")
boolean6.Type = "Fuse"
boolean6.addObjects([body])
doc.recompute()

boolean7 = body9.newObject("PartDesign::Boolean", "Boolean006")
boolean7.Type = "Fuse"
boolean7.addObjects([body7])
doc.recompute()

boolean8 = body9.newObject("PartDesign::Boolean", "Boolean007")
boolean8.Type = "Fuse"
boolean8.addObjects([body8])

sketch14 = body9.newObject("Sketcher::SketchObject", "Sketch013")
sketch14.AttachmentSupport = (doc.getObject("XZ_Plane008"), [""])
sketch14.MapMode = "FlatFace"
sketch14.AttachmentOffset = App.Placement(Vector(0, 0, 41.5), App.Rotation())
sketch14.addGeometry(Part.Circle(Vector(0, 4.5, 0), Vector(0, 0, 1), 1.2), False)
sketch14.addConstraint(Sketcher.Constraint("PointOnObject", 0, 3, -2))
sketch14.addConstraint(Sketcher.Constraint("Diameter", 0, 2.5))
sketch14.addConstraint(Sketcher.Constraint("DistanceY", -1, 1, 0, 3, 4.5))
sketch14.setExpression("Constraints[1]", "Params.sketch14_diameter")
pocket1 = body9.newObject("PartDesign::Pocket", "Pocket")
pocket1.Profile = sketch14
pocket1.Type = "ThroughAll"

sketch15 = body9.newObject("Sketcher::SketchObject", "Sketch014")
sketch15.AttachmentSupport = (doc.getObject("YZ_Plane008"), [""])
sketch15.MapMode = "FlatFace"
sketch15.AttachmentOffset = App.Placement(Vector(0, 0, 41.5), App.Rotation())
sketch15.addGeometry(Part.Circle(Vector(0, 4.5, 0), Vector(0, 0, 1), 1.2), False)
sketch15.addConstraint(Sketcher.Constraint("PointOnObject", 0, 3, -2))
sketch15.addConstraint(Sketcher.Constraint("Diameter", 0, 2.5))
sketch15.addConstraint(Sketcher.Constraint("DistanceY", -1, 1, 0, 3, 4.5))
sketch15.setExpression("Constraints[1]", "Params.sketch15_diameter")
pocket2 = body9.newObject("PartDesign::Pocket", "Pocket001")
pocket2.Profile = sketch15
pocket2.Type = "ThroughAll"

doc.recompute()
